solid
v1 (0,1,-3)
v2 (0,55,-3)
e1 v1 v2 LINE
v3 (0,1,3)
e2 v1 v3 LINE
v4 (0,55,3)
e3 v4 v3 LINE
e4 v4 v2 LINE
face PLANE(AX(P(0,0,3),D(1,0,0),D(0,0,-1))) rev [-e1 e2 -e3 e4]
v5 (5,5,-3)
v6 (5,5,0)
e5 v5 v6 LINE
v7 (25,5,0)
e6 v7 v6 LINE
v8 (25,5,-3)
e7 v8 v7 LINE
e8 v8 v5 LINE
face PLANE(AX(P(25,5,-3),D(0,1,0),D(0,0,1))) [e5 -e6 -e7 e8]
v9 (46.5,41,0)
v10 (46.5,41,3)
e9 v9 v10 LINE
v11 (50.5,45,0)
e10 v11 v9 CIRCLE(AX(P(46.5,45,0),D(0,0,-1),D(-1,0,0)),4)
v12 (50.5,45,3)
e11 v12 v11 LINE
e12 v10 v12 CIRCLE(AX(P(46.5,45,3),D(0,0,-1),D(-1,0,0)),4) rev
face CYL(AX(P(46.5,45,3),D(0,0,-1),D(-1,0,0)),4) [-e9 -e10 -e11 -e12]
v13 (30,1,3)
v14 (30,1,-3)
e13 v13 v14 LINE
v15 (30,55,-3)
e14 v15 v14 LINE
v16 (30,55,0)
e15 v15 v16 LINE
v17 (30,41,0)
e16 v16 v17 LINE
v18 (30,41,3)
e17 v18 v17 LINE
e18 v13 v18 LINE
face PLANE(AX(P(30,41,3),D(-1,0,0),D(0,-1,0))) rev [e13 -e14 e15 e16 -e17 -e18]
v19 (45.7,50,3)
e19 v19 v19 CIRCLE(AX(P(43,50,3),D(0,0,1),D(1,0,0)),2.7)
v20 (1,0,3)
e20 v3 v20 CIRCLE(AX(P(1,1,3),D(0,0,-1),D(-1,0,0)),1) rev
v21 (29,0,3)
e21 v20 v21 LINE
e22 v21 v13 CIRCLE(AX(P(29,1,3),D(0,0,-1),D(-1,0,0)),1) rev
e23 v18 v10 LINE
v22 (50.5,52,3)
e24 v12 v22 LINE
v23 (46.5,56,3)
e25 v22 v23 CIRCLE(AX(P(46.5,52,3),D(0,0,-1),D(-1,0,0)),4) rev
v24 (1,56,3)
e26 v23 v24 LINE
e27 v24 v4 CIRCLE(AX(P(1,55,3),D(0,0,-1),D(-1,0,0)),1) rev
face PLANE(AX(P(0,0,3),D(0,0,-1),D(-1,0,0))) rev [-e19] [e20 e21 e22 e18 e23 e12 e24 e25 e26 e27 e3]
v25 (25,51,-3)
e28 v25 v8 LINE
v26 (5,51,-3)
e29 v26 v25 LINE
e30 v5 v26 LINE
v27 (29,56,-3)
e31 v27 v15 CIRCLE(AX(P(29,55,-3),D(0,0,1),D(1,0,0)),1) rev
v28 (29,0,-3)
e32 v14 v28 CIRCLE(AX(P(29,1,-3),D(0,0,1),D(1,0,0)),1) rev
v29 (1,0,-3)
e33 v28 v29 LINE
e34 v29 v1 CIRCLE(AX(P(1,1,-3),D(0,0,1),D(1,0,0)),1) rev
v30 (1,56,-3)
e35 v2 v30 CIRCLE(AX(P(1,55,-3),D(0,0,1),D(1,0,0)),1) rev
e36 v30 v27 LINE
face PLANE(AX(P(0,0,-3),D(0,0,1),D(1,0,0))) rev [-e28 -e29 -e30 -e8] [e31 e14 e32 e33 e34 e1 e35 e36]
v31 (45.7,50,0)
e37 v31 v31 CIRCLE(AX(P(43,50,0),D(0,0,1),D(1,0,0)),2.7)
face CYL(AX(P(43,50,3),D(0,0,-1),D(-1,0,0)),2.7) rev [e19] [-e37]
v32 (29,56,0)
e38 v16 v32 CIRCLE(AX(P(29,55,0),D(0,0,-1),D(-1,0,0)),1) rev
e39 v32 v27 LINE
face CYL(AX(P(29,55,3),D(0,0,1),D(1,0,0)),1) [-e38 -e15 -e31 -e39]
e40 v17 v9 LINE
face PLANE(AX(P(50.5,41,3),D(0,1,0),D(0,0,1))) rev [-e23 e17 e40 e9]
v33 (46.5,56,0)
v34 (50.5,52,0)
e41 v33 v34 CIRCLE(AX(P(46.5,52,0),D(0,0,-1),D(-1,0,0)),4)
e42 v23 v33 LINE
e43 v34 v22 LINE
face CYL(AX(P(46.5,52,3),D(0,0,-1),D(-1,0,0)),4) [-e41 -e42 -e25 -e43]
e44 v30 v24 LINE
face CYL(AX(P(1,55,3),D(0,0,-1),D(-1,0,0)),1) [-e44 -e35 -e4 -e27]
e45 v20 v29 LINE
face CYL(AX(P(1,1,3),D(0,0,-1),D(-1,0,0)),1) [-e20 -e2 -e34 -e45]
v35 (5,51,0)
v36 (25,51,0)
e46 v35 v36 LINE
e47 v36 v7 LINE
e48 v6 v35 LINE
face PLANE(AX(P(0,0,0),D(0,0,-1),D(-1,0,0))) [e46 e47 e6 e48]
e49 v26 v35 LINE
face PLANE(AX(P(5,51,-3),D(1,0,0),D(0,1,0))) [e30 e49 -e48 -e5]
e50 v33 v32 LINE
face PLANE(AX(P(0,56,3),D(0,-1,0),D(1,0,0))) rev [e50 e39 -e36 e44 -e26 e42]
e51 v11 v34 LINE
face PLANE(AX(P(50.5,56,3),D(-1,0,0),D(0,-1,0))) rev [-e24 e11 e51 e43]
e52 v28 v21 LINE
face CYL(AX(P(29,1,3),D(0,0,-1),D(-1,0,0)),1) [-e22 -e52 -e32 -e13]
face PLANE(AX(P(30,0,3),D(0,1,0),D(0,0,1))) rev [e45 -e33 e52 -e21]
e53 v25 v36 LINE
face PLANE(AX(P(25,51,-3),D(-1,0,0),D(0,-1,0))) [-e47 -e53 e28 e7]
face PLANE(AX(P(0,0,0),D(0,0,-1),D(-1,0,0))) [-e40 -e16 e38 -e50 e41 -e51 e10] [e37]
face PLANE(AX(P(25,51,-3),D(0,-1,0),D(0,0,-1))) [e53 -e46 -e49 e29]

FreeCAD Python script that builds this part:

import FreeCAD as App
import Part
import Sketcher

V = App.Vector


def edges_at(feature, points):
    """Names of the edges that pass closest to the given points."""
    edges = feature.Shape.Edges
    near = lambda p: min(range(len(edges)), key=lambda i: edges[i].distToShape(Part.Vertex(*p))[0])
    return sorted({f"Edge{near(p) + 1}" for p in points})


def add_polygon(sketch, points):
    """Adds a closed chain of lines whose ends are joined by coincident constraints."""
    first, n = sketch.GeometryCount, len(points)
    for a, b in zip(points, points[1:] + points[:1]):
        sketch.addGeometry(Part.LineSegment(App.Vector(*a, 0), App.Vector(*b, 0)), False)
    for i in range(n):
        sketch.addConstraint(Sketcher.Constraint("Coincident", first + i, 2, first + (i + 1) % n, 1))

doc = App.newDocument("Part")
body = doc.addObject("PartDesign::Body", "Body")

sketch1 = body.newObject("Sketcher::SketchObject", "Sketch")
sketch1.AttachmentSupport = (doc.getObject("XY_Plane"), [""])
sketch1.MapMode = "FlatFace"
add_polygon(sketch1, [(0, 56), (0, 0), (30, 0), (30, 41), (50.5, 41), (50.5, 56)])
sketch1.addGeometry(Part.Circle(V(43, 50, 0), V(0, 0, 1), 2.7), False)
sketch1.addConstraint([
    Sketcher.Constraint("Vertical", 0),
    Sketcher.Constraint("Horizontal", 1),
    Sketcher.Constraint("Vertical", 2),
    Sketcher.Constraint("Horizontal", 3),
    Sketcher.Constraint("Vertical", 4),
    Sketcher.Constraint("Horizontal", 5),
    Sketcher.Constraint("Coincident", 0, 2, -1, 1),
    Sketcher.Constraint("Diameter", 6, 5.4),
    Sketcher.Constraint("DistanceX", 1, 1, 1, 2, 30.0),
    Sketcher.Constraint("DistanceY", 0, 2, 0, 1, 56.0),
    Sketcher.Constraint("DistanceY", 2, 1, 2, 2, 41.0),
    Sketcher.Constraint("DistanceX", 3, 1, 3, 2, 20.5),
    Sketcher.Constraint("DistanceX", -1, 1, 6, 3, 43.0),
    Sketcher.Constraint("DistanceY", -1, 1, 6, 3, 50.0),
])
pad1 = body.newObject("PartDesign::Pad", "Pad")
pad1.Profile = sketch1
pad1.Length = 3

sketch2 = body.newObject("Sketcher::SketchObject", "Sketch001")
sketch2.AttachmentSupport = (doc.getObject("XY_Plane"), [""])
sketch2.MapMode = "FlatFace"
add_polygon(sketch2, [(30, 56), (30, 0), (0, 0), (0, 56)])
add_polygon(sketch2, [(5, 5), (25, 5), (25, 51), (5, 51)])
sketch2.addConstraint([
    Sketcher.Constraint("Vertical", 0),
    Sketcher.Constraint("Horizontal", 1),
    Sketcher.Constraint("Vertical", 2),
    Sketcher.Constraint("Horizontal", 3),
    Sketcher.Constraint("Horizontal", 4),
    Sketcher.Constraint("Vertical", 5),
    Sketcher.Constraint("Horizontal", 6),
    Sketcher.Constraint("Vertical", 7),
    Sketcher.Constraint("Coincident", 1, 2, -1, 1),
    Sketcher.Constraint("DistanceX", 1, 2, 1, 1, 30.0),
    Sketcher.Constraint("DistanceX", 4, 1, 4, 2, 20.0),
    Sketcher.Constraint("DistanceY", 0, 2, 0, 1, 56.0),
    Sketcher.Constraint("DistanceY", 5, 1, 5, 2, 46.0),
    Sketcher.Constraint("DistanceX", -1, 1, 4, 2, 25.0),
    Sketcher.Constraint("DistanceY", -1, 1, 4, 2, 5.0),
])
pad2 = body.newObject("PartDesign::Pad", "Pad001")
pad2.Profile = sketch2
pad2.Length = 3
pad2.Reversed = True
doc.recompute()

fillet = body.newObject("PartDesign::Fillet", "Fillet")
fillet.Base = (pad2, edges_at(pad2, [(50.5, 56, 1.5), (50.5, 41, 1.5)]))
fillet.Radius = 4
doc.recompute()

fillet2 = body.newObject("PartDesign::Fillet", "Fillet001")
fillet2.Base = (fillet, edges_at(fillet, [
    (0, 0, 0),
    (0, 56, 0),
    (30, 0, 0),
    (30, 56, -1.5),
]))
fillet2.Radius = 1

doc.recompute()
